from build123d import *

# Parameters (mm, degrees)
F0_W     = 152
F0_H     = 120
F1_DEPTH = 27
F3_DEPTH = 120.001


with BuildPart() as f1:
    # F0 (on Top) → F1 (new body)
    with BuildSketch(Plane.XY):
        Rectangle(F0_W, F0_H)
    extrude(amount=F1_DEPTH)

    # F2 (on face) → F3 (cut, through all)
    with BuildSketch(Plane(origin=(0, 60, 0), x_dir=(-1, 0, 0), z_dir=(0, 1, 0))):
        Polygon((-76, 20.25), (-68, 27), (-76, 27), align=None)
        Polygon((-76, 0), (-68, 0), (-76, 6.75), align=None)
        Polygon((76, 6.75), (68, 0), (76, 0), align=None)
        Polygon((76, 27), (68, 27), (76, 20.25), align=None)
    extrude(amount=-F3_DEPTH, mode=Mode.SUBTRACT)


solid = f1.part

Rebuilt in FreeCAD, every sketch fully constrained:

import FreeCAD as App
import Part
import Sketcher

V = App.Vector

doc = App.newDocument("Part")
body = doc.addObject("PartDesign::Body", "Body")

# Sketch on XY plane
sketch1 = doc.addObject("Sketcher::SketchObject", "Sketch")
body.addObject(sketch1)
sketch1.AttachmentSupport = (doc.XY_Plane, [""])
sketch1.MapMode = "FlatFace"
sketch1.addGeometry([
    Part.LineSegment(V(-76, 60, 0), V(-76, -60, 0)),
    Part.LineSegment(V(-76, -60, 0), V(76, -60, 0)),
    Part.LineSegment(V(76, -60, 0), V(76, 60, 0)),
    Part.LineSegment(V(76, 60, 0), V(-76, 60, 0)),
], False)
sketch1.addConstraint([
    Sketcher.Constraint("Coincident", 0, 2, 1, 1),
    Sketcher.Constraint("Coincident", 1, 2, 2, 1),
    Sketcher.Constraint("Coincident", 2, 2, 3, 1),
    Sketcher.Constraint("Coincident", 3, 2, 0, 1),
    Sketcher.Constraint("Vertical", 0),
    Sketcher.Constraint("Horizontal", 1),
    Sketcher.Constraint("Vertical", 2),
    Sketcher.Constraint("Horizontal", 3),
    Sketcher.Constraint("Symmetric", 0, 2, 2, 2, -1, 1),
    Sketcher.Constraint("DistanceX", 1, 1, 1, 2, 152.0),
    Sketcher.Constraint("DistanceY", 0, 2, 0, 1, 120.0),
])
pad1 = doc.addObject("PartDesign::Pad", "Pad")
body.addObject(pad1)
pad1.Profile = sketch1
pad1.Length = 27

# Sketch on XZ plane
sketch2 = doc.addObject("Sketcher::SketchObject", "Sketch001")
body.addObject(sketch2)
sketch2.AttachmentSupport = (doc.XZ_Plane, [""])
sketch2.MapMode = "FlatFace"
sketch2.AttachmentOffset = App.Placement(V(0, 0, -60), App.Rotation())
sketch2.addGeometry([
    Part.LineSegment(V(76, 20.25, 0), V(68, 27, 0)),  # 0
    Part.LineSegment(V(68, 27, 0), V(76, 27, 0)),  # 1
    Part.LineSegment(V(76, 27, 0), V(76, 20.25, 0)),  # 2
    Part.LineSegment(V(76, 0, 0), V(68, 0, 0)),  # 3
    Part.LineSegment(V(68, 0, 0), V(76, 6.75, 0)),  # 4
    Part.LineSegment(V(76, 6.75, 0), V(76, 0, 0)),  # 5
    Part.LineSegment(V(-76, 6.75, 0), V(-68, 0, 0)),  # 6
    Part.LineSegment(V(-68, 0, 0), V(-76, 0, 0)),  # 7
    Part.LineSegment(V(-76, 0, 0), V(-76, 6.75, 0)),  # 8
    Part.LineSegment(V(-76, 27, 0), V(-68, 27, 0)),  # 9
    Part.LineSegment(V(-68, 27, 0), V(-76, 20.25, 0)),  # 10
    Part.LineSegment(V(-76, 20.25, 0), V(-76, 27, 0)),  # 11
], False)
sketch2.addConstraint([
    Sketcher.Constraint("Coincident", 0, 2, 1, 1),
    Sketcher.Constraint("Coincident", 1, 2, 2, 1),
    Sketcher.Constraint("Coincident", 2, 2, 0, 1),
    Sketcher.Constraint("Coincident", 3, 2, 4, 1),
    Sketcher.Constraint("Coincident", 4, 2, 5, 1),
    Sketcher.Constraint("Coincident", 5, 2, 3, 1),
    Sketcher.Constraint("Coincident", 6, 2, 7, 1),
    Sketcher.Constraint("Coincident", 7, 2, 8, 1),
    Sketcher.Constraint("Coincident", 8, 2, 6, 1),
    Sketcher.Constraint("Coincident", 9, 2, 10, 1),
    Sketcher.Constraint("Coincident", 10, 2, 11, 1),
    Sketcher.Constraint("Coincident", 11, 2, 9, 1),
    Sketcher.Constraint("Horizontal", 1),
    Sketcher.Constraint("Vertical", 2),
    Sketcher.Constraint("Horizontal", 3),
    Sketcher.Constraint("Vertical", 5),
    Sketcher.Constraint("Horizontal", 7),
    Sketcher.Constraint("Vertical", 8),
    Sketcher.Constraint("Horizontal", 9),
    Sketcher.Constraint("Vertical", 11),
    Sketcher.Constraint("Symmetric", 3, 2, 6, 2, -1, 1),
    Sketcher.Constraint("Symmetric", 5, 2, 7, 2, -2),
    Sketcher.Constraint("Symmetric", 0, 2, 9, 2, -2),
    Sketcher.Constraint("Symmetric", 2, 2, 10, 2, -2),
    Sketcher.Constraint("Parallel", 0, 6),
    Sketcher.Constraint("Parallel", 4, 10),
    Sketcher.Constraint("Vertical", 0, 2, 3, 2),
    Sketcher.Constraint("Vertical", 2, 2, 4, 2),
    Sketcher.Constraint("DistanceX", 1, 1, 1, 2, 8.0),
    Sketcher.Constraint("DistanceX", -1, 1, 0, 2, 68.0),
    Sketcher.Constraint("DistanceY", -1, 1, 0, 2, 27.0),
    Sketcher.Constraint("DistanceY", 2, 2, 2, 1, 6.75),
])
pocket1 = doc.addObject("PartDesign::Pocket", "Pocket")
body.addObject(pocket1)
pocket1.Profile = sketch2
pocket1.Type = "ThroughAll"
pocket1.Reversed = True

doc.recompute()
